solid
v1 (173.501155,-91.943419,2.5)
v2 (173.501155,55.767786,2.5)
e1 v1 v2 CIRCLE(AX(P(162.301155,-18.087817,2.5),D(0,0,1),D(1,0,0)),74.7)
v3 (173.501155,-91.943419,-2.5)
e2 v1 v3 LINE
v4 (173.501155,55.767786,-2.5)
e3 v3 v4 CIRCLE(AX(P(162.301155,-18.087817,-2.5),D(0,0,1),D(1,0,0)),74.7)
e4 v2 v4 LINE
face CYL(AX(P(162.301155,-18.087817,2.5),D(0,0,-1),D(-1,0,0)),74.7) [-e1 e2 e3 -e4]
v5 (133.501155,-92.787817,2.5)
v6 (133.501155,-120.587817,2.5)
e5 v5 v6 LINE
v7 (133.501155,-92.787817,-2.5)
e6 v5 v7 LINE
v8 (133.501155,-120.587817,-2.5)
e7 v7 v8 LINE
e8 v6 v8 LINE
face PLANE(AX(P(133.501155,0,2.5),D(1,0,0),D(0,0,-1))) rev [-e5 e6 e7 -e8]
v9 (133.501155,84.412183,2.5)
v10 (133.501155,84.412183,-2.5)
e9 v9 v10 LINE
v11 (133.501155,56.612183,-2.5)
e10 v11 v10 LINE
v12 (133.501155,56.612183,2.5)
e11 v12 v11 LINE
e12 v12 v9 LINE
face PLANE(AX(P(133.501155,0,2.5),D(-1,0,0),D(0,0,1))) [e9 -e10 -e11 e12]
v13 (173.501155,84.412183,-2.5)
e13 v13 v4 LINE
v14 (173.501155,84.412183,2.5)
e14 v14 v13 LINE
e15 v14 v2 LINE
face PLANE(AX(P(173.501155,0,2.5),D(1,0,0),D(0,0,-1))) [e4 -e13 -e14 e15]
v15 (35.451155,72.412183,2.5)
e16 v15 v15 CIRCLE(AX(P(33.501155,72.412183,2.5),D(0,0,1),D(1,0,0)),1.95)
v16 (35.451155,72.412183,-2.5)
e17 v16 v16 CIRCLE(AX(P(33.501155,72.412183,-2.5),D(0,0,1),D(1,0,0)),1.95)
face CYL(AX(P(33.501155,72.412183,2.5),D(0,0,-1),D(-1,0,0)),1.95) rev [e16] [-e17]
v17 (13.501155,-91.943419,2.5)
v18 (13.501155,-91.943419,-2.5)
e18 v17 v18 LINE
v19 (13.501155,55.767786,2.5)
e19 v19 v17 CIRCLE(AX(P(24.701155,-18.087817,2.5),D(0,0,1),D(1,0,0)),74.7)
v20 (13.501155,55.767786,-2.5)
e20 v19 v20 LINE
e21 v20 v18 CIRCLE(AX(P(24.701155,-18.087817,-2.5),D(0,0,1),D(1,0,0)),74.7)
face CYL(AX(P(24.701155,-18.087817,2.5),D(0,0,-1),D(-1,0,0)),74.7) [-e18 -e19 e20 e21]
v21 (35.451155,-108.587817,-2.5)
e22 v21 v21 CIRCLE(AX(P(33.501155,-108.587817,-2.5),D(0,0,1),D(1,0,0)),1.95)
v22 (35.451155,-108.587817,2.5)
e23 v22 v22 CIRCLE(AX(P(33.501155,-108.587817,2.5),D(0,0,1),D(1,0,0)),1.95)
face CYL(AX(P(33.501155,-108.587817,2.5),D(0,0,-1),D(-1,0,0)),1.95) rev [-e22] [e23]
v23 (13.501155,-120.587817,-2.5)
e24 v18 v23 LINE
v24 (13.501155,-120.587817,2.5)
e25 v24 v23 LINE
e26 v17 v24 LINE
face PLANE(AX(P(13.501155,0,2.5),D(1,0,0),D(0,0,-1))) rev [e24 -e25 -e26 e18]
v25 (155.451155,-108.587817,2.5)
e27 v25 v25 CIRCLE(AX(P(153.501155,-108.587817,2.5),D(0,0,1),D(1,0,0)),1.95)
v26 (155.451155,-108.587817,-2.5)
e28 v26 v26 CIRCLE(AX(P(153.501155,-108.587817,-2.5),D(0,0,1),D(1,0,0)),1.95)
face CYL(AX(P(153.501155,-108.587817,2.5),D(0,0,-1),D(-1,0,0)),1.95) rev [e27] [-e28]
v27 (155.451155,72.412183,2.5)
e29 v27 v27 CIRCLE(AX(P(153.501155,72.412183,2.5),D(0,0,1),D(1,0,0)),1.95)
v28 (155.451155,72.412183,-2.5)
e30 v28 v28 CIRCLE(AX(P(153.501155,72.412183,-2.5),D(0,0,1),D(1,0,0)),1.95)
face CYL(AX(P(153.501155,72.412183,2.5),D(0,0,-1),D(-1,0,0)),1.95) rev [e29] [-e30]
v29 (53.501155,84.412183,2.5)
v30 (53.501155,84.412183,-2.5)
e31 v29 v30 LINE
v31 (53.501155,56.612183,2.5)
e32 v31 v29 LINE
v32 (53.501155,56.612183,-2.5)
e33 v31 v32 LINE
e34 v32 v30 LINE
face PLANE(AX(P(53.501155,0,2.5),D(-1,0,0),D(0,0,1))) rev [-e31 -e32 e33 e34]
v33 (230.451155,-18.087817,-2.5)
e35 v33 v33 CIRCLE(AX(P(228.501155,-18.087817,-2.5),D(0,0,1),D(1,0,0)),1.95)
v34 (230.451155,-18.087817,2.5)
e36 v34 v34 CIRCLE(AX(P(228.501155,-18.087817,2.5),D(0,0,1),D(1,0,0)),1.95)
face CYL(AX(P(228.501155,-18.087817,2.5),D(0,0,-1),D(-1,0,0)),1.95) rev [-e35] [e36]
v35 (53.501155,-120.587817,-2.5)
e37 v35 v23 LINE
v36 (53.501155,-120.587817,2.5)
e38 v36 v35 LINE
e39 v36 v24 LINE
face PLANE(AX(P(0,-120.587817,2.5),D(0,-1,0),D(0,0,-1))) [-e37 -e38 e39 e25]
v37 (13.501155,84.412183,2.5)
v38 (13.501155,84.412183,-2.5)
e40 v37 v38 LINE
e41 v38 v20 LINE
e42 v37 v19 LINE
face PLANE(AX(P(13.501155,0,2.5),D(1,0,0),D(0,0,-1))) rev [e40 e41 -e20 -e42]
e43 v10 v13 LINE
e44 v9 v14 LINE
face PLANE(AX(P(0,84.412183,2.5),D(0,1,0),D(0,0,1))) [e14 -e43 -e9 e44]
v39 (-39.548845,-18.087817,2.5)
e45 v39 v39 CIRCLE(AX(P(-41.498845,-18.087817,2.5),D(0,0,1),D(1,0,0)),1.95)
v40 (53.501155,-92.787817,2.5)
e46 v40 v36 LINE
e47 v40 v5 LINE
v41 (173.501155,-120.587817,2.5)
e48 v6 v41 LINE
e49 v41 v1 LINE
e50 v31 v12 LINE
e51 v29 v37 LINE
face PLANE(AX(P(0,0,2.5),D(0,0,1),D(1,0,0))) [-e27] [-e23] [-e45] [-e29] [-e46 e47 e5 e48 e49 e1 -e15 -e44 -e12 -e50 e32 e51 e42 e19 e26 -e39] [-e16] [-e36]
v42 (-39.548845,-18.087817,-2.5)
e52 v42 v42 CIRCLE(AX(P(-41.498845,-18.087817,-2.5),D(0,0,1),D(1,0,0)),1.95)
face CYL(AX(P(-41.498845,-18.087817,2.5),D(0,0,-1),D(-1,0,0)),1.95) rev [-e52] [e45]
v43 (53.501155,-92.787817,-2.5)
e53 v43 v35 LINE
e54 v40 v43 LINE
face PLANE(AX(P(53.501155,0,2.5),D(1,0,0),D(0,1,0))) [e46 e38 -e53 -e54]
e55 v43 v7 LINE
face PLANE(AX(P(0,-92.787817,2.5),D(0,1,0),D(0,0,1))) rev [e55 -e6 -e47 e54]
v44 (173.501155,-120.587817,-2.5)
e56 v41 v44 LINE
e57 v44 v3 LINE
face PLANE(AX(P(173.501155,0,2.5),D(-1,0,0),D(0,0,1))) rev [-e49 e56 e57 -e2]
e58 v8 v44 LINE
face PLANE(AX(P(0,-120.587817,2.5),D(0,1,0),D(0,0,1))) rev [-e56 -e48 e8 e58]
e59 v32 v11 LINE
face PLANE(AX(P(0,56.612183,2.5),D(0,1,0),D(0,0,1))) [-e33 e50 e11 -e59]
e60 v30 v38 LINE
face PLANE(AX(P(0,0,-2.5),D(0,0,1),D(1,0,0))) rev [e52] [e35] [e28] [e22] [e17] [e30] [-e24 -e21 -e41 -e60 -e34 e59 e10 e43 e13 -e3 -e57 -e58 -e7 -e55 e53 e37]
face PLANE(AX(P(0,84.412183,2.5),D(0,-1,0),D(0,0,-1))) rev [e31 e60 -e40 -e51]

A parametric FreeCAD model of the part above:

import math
import FreeCAD as App
import Part
import Sketcher

V = App.Vector
Q = App.Units.Quantity

doc = App.newDocument("Part")
body = doc.addObject("PartDesign::Body", "Body")

# Sketch on XY plane
sketch1 = body.newObject("Sketcher::SketchObject", "Sketch")
sketch1.AttachmentSupport = (doc.getObject("XY_Plane"), [""])
sketch1.MapMode = "FlatFace"
sketch1.addGeometry(Part.LineSegment(V(133.501155, 56.612183, 0), V(53.501155, 56.612183, 0)), False)
sketch1.addGeometry(Part.LineSegment(V(53.501155, 56.612183, 0), V(53.501155, 84.412183, 0)), False)
sketch1.addGeometry(Part.LineSegment(V(53.501155, 84.412183, 0), V(13.501155, 84.412183, 0)), False)
sketch1.addGeometry(Part.LineSegment(V(13.501155, 84.412183, 0), V(13.501155, 55.767786, 0)), False)
sketch1.addGeometry(Part.ArcOfCircle(Part.Circle(V(24.701155, -18.087817, 0), V(0, 0, 1), 74.7), math.radians(98.623048), math.radians(261.376952)), False)
sketch1.addGeometry(Part.LineSegment(V(13.501155, -91.943419, 0), V(13.501155, -120.587817, 0)), False)
sketch1.addGeometry(Part.LineSegment(V(13.501155, -120.587817, 0), V(53.501155, -120.587817, 0)), False)
sketch1.addGeometry(Part.LineSegment(V(53.501155, -120.587817, 0), V(53.501155, -92.787817, 0)), False)
sketch1.addGeometry(Part.LineSegment(V(53.501155, -92.787817, 0), V(133.501155, -92.787817, 0)), False)
sketch1.addGeometry(Part.LineSegment(V(133.501155, -92.787817, 0), V(133.501155, -120.587817, 0)), False)
sketch1.addGeometry(Part.LineSegment(V(133.501155, -120.587817, 0), V(173.501155, -120.587817, 0)), False)
sketch1.addGeometry(Part.LineSegment(V(173.501155, -120.587817, 0), V(173.501155, -91.943419, 0)), False)
sketch1.addGeometry(Part.ArcOfCircle(Part.Circle(V(162.301155, -18.087817, 0), V(0, 0, 1), 74.7), math.radians(-81.376952), math.radians(81.376952)), False)
sketch1.addGeometry(Part.LineSegment(V(173.501155, 55.767786, 0), V(173.501155, 84.412183, 0)), False)
sketch1.addGeometry(Part.LineSegment(V(173.501155, 84.412183, 0), V(133.501155, 84.412183, 0)), False)
sketch1.addGeometry(Part.LineSegment(V(133.501155, 84.412183, 0), V(133.501155, 56.612183, 0)), False)
sketch1.addGeometry(Part.Circle(V(33.501155, -108.587817, 0), V(0, 0, 1), 1.95), False)
sketch1.addGeometry(Part.Circle(V(153.501155, -108.587817, 0), V(0, 0, 1), 1.95), False)
sketch1.addGeometry(Part.Circle(V(-41.498845, -18.087817, 0), V(0, 0, 1), 1.95), False)
sketch1.addGeometry(Part.Circle(V(33.501155, 72.412183, 0), V(0, 0, 1), 1.95), False)
sketch1.addGeometry(Part.Circle(V(228.501155, -18.087817, 0), V(0, 0, 1), 1.95), False)
sketch1.addGeometry(Part.Circle(V(153.501155, 72.412183, 0), V(0, 0, 1), 1.95), False)
sketch1.addConstraint(Sketcher.Constraint("Coincident", 0, 2, 1, 1))
sketch1.addConstraint(Sketcher.Constraint("Coincident", 1, 2, 2, 1))
sketch1.addConstraint(Sketcher.Constraint("Coincident", 2, 2, 3, 1))
sketch1.addConstraint(Sketcher.Constraint("Coincident", 3, 2, 4, 1))
sketch1.addConstraint(Sketcher.Constraint("Coincident", 4, 2, 5, 1))
sketch1.addConstraint(Sketcher.Constraint("Coincident", 5, 2, 6, 1))
sketch1.addConstraint(Sketcher.Constraint("Coincident", 6, 2, 7, 1))
sketch1.addConstraint(Sketcher.Constraint("Coincident", 7, 2, 8, 1))
sketch1.addConstraint(Sketcher.Constraint("Coincident", 8, 2, 9, 1))
sketch1.addConstraint(Sketcher.Constraint("Coincident", 9, 2, 10, 1))
sketch1.addConstraint(Sketcher.Constraint("Coincident", 10, 2, 11, 1))
sketch1.addConstraint(Sketcher.Constraint("Coincident", 11, 2, 12, 1))
sketch1.addConstraint(Sketcher.Constraint("Coincident", 12, 2, 13, 1))
sketch1.addConstraint(Sketcher.Constraint("Coincident", 13, 2, 14, 1))
sketch1.addConstraint(Sketcher.Constraint("Coincident", 14, 2, 15, 1))
sketch1.addConstraint(Sketcher.Constraint("Coincident", 15, 2, 0, 1))
sketch1.addConstraint(Sketcher.Constraint("Horizontal", 0))
sketch1.addConstraint(Sketcher.Constraint("Vertical", 1))
sketch1.addConstraint(Sketcher.Constraint("Horizontal", 2))
sketch1.addConstraint(Sketcher.Constraint("Vertical", 3))
sketch1.addConstraint(Sketcher.Constraint("Vertical", 5))
sketch1.addConstraint(Sketcher.Constraint("Horizontal", 6))
sketch1.addConstraint(Sketcher.Constraint("Vertical", 7))
sketch1.addConstraint(Sketcher.Constraint("Horizontal", 8))
sketch1.addConstraint(Sketcher.Constraint("Vertical", 9))
sketch1.addConstraint(Sketcher.Constraint("Horizontal", 10))
sketch1.addConstraint(Sketcher.Constraint("Vertical", 11))
sketch1.addConstraint(Sketcher.Constraint("Vertical", 13))
sketch1.addConstraint(Sketcher.Constraint("Horizontal", 14))
sketch1.addConstraint(Sketcher.Constraint("Vertical", 15))
sketch1.addConstraint(Sketcher.Constraint("Equal", 4, 12))
sketch1.addConstraint(Sketcher.Constraint("Equal", 16, 17))
sketch1.addConstraint(Sketcher.Constraint("Equal", 17, 18))
sketch1.addConstraint(Sketcher.Constraint("Equal", 18, 19))
sketch1.addConstraint(Sketcher.Constraint("Equal", 19, 20))
sketch1.addConstraint(Sketcher.Constraint("Equal", 20, 21))
sketch1.addConstraint(Sketcher.Constraint("Horizontal", 4, 3, 12, 3))
sketch1.addConstraint(Sketcher.Constraint("Horizontal", 16, 3, 17, 3))
sketch1.addConstraint(Sketcher.Constraint("Horizontal", 12, 3, 18, 3))
sketch1.addConstraint(Sketcher.Constraint("Horizontal", 18, 3, 20, 3))
sketch1.addConstraint(Sketcher.Constraint("Horizontal", 19, 3, 21, 3))
sketch1.addConstraint(Sketcher.Constraint("Horizontal", 6, 2, 9, 2))
sketch1.addConstraint(Sketcher.Constraint("Horizontal", 4, 2, 11, 2))
sketch1.addConstraint(Sketcher.Constraint("Horizontal", 3, 2, 12, 2))
sketch1.addConstraint(Sketcher.Constraint("Horizontal", 2, 2, 13, 2))
sketch1.addConstraint(Sketcher.Constraint("Vertical", 16, 3, 19, 3))
sketch1.addConstraint(Sketcher.Constraint("Vertical", 17, 3, 21, 3))
sketch1.addConstraint(Sketcher.Constraint("Vertical", 3, 2, 4, 2))
sketch1.addConstraint(Sketcher.Constraint("Vertical", 1, 2, 6, 2))
sketch1.addConstraint(Sketcher.Constraint("Vertical", 9, 2, 14, 2))
sketch1.addConstraint(Sketcher.Constraint("Equal", 6, 10))
sketch1.addConstraint(Sketcher.Constraint("Equal", 3, 5))
sketch1.addConstraint(Sketcher.Constraint("Equal", 1, 7))
sketch1.addConstraint(Sketcher.Constraint("Diameter", 16, Q("3.9 mm")))
sketch1.addConstraint(Sketcher.Constraint("Radius", 4, Q("74.7 mm")))
sketch1.addConstraint(Sketcher.Constraint("DistanceX", 0, 2, 0, 1, Q("80 mm")))
sketch1.addConstraint(Sketcher.Constraint("DistanceX", 2, 2, 2, 1, Q("40 mm")))
sketch1.addConstraint(Sketcher.Constraint("DistanceY", 1, 1, 1, 2, Q("27.8 mm")))
sketch1.addConstraint(Sketcher.Constraint("DistanceX", 16, 3, 17, 3, Q("120 mm")))
sketch1.addConstraint(Sketcher.Constraint("DistanceX", 18, 3, 16, 3, Q("75 mm")))
sketch1.addConstraint(Sketcher.Constraint("DistanceY", 16, 3, 19, 3, Q("181 mm")))
sketch1.addConstraint(Sketcher.Constraint("DistanceX", 17, 3, 20, 3, Q("75 mm")))
sketch1.addConstraint(Sketcher.Constraint("DistanceX", 19, 3, 0, 2, Q("20 mm")))
sketch1.addConstraint(Sketcher.Constraint("DistanceY", 19, 3, 1, 2, Q("12 mm")))
sketch1.addConstraint(Sketcher.Constraint("DistanceY", 5, 2, 16, 3, Q("12 mm")))
sketch1.addConstraint(Sketcher.Constraint("DistanceX", 4, 3, 12, 3, Q("137.6 mm")))
sketch1.addConstraint(Sketcher.Constraint("DistanceY", 4, 2, -1, 1, Q("91.943419 mm")))
sketch1.addConstraint(Sketcher.Constraint("DistanceX", -1, 1, 4, 3, Q("24.701155 mm")))
pad1 = body.newObject("PartDesign::Pad", "Pad")
pad1.Profile = sketch1
pad1.Length = 5
pad1.Midplane = True

doc.recompute()
